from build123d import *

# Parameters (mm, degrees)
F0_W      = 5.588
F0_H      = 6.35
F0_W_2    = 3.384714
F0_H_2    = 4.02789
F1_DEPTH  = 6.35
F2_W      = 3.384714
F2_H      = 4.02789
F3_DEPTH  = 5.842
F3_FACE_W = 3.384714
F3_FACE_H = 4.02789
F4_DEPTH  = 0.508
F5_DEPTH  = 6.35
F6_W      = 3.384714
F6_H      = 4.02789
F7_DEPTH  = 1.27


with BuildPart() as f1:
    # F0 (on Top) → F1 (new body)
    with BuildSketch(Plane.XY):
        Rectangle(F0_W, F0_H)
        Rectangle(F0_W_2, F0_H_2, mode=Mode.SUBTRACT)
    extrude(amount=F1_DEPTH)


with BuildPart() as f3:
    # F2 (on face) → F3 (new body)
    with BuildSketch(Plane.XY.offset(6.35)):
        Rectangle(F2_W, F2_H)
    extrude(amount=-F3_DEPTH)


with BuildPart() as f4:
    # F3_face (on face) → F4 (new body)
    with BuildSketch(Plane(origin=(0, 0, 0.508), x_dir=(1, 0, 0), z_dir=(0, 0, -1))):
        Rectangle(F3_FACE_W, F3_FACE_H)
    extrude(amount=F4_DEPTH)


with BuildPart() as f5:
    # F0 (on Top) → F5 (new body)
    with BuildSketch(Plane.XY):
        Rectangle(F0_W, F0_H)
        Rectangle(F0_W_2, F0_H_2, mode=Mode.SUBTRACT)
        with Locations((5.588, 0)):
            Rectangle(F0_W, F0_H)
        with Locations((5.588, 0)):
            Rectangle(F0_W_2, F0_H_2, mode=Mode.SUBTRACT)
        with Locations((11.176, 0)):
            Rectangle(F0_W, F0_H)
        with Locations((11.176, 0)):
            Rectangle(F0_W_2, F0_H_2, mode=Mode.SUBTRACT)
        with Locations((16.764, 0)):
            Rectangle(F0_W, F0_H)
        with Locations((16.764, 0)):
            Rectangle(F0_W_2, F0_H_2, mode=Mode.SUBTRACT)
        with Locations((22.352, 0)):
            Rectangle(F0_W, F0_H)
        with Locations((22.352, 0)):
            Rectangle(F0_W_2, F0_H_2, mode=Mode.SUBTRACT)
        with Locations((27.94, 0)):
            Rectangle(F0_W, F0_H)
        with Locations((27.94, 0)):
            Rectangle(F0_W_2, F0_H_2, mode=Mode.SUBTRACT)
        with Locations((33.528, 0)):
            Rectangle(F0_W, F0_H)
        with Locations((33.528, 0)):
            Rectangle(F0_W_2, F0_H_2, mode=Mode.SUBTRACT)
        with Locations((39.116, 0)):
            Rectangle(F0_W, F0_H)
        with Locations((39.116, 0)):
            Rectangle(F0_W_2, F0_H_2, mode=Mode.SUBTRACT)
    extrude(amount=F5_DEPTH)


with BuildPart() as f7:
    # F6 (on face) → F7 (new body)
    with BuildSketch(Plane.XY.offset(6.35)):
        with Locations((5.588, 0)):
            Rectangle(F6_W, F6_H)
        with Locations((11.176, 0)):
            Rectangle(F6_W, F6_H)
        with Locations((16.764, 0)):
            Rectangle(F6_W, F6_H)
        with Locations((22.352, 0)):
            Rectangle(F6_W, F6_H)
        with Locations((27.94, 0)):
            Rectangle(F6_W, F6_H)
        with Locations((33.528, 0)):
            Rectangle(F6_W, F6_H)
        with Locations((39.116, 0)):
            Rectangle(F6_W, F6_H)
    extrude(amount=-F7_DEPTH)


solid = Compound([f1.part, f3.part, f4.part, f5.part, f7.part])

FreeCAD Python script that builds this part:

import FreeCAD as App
import Part
import Sketcher

V = App.Vector
Q = App.Units.Quantity

doc = App.newDocument("Part")
body = doc.addObject("PartDesign::Body", "Body")

# Sketch on XY plane
sketch1 = body.newObject("Sketcher::SketchObject", "Sketch")
sketch1.AttachmentSupport = (doc.getObject("XY_Plane"), [""])
sketch1.MapMode = "FlatFace"
sketch1.addGeometry([
    Part.LineSegment(V(-2.794, 3.175, 0), V(-2.794, -3.175, 0)),  # 0
    Part.LineSegment(V(-2.794, -3.175, 0), V(2.794, -3.175, 0)),  # 1
    Part.LineSegment(V(2.794, -3.175, 0), V(2.794, 3.175, 0)),  # 2
    Part.LineSegment(V(2.794, 3.175, 0), V(-2.794, 3.175, 0)),  # 3
    Part.LineSegment(V(1.692357, -2.013945, 0), V(-1.692357, -2.013945, 0)),  # 4
    Part.LineSegment(V(-1.692357, -2.013945, 0), V(-1.692357, 2.013945, 0)),  # 5
    Part.LineSegment(V(-1.692357, 2.013945, 0), V(1.692357, 2.013945, 0)),  # 6
    Part.LineSegment(V(1.692357, 2.013945, 0), V(1.692357, -2.013945, 0)),  # 7
], False)
sketch1.addConstraint([
    Sketcher.Constraint("Coincident", 0, 2, 1, 1),
    Sketcher.Constraint("Coincident", 1, 2, 2, 1),
    Sketcher.Constraint("Coincident", 2, 2, 3, 1),
    Sketcher.Constraint("Coincident", 3, 2, 0, 1),
    Sketcher.Constraint("Coincident", 4, 2, 5, 1),
    Sketcher.Constraint("Coincident", 5, 2, 6, 1),
    Sketcher.Constraint("Coincident", 6, 2, 7, 1),
    Sketcher.Constraint("Coincident", 7, 2, 4, 1),
    Sketcher.Constraint("Vertical", 0),
    Sketcher.Constraint("Horizontal", 1),
    Sketcher.Constraint("Vertical", 2),
    Sketcher.Constraint("Horizontal", 3),
    Sketcher.Constraint("Horizontal", 4),
    Sketcher.Constraint("Vertical", 5),
    Sketcher.Constraint("Horizontal", 6),
    Sketcher.Constraint("Vertical", 7),
    Sketcher.Constraint("Symmetric", 0, 2, 2, 2, -1, 1),
    Sketcher.Constraint("Symmetric", 4, 2, 6, 2, -1, 1),
    Sketcher.Constraint("DistanceX", 1, 1, 1, 2, Q("0.22 in")),
    Sketcher.Constraint("DistanceY", 0, 2, 0, 1, Q("0.25 in")),
    Sketcher.Constraint("DistanceY", 5, 1, 5, 2, 4.02789),
    Sketcher.Constraint("DistanceX", 4, 2, 4, 1, 3.384714),
])
pad1 = body.newObject("PartDesign::Pad", "Pad")
pad1.Profile = sketch1
pad1.Length = Q("0.25 in")
body2 = doc.addObject("PartDesign::Body", "Body001")

# Sketch on XY plane
sketch2 = body2.newObject("Sketcher::SketchObject", "Sketch001")
sketch2.AttachmentSupport = (doc.getObject("XY_Plane001"), [""])
sketch2.MapMode = "FlatFace"
sketch2.AttachmentOffset = App.Placement(V(0, 0, 0.25 * 25.4), App.Rotation())
sketch2.addGeometry([
    Part.LineSegment(V(-1.692357, 2.013945, 0), V(-1.692357, -2.013945, 0)),
    Part.LineSegment(V(-1.692357, -2.013945, 0), V(1.692357, -2.013945, 0)),
    Part.LineSegment(V(1.692357, -2.013945, 0), V(1.692357, 2.013945, 0)),
    Part.LineSegment(V(1.692357, 2.013945, 0), V(-1.692357, 2.013945, 0)),
], False)
sketch2.addConstraint([
    Sketcher.Constraint("Coincident", 0, 2, 1, 1),
    Sketcher.Constraint("Coincident", 1, 2, 2, 1),
    Sketcher.Constraint("Coincident", 2, 2, 3, 1),
    Sketcher.Constraint("Coincident", 3, 2, 0, 1),
    Sketcher.Constraint("Vertical", 0),
    Sketcher.Constraint("Horizontal", 1),
    Sketcher.Constraint("Vertical", 2),
    Sketcher.Constraint("Horizontal", 3),
    Sketcher.Constraint("Symmetric", 0, 2, 2, 2, -1, 1),
    Sketcher.Constraint("DistanceY", 0, 2, 0, 1, 4.02789),
    Sketcher.Constraint("DistanceX", 1, 1, 1, 2, 3.384714),
])
pad2 = body2.newObject("PartDesign::Pad", "Pad001")
pad2.Profile = sketch2
pad2.Length = Q("0.23 in")
pad2.Reversed = True
body3 = doc.addObject("PartDesign::Body", "Body002")

# Sketch on XY plane
sketch3 = body3.newObject("Sketcher::SketchObject", "Sketch002")
sketch3.AttachmentSupport = (doc.getObject("XY_Plane002"), [""])
sketch3.MapMode = "FlatFace"
sketch3.AttachmentOffset = App.Placement(V(0, 0, 0.02 * 25.4), App.Rotation())
sketch3.addGeometry([
    Part.LineSegment(V(-1.692357, -2.013945, 0), V(-1.692357, 2.013945, 0)),
    Part.LineSegment(V(-1.692357, 2.013945, 0), V(1.692357, 2.013945, 0)),
    Part.LineSegment(V(1.692357, 2.013945, 0), V(1.692357, -2.013945, 0)),
    Part.LineSegment(V(1.692357, -2.013945, 0), V(-1.692357, -2.013945, 0)),
], False)
sketch3.addConstraint([
    Sketcher.Constraint("Coincident", 0, 2, 1, 1),
    Sketcher.Constraint("Coincident", 1, 2, 2, 1),
    Sketcher.Constraint("Coincident", 2, 2, 3, 1),
    Sketcher.Constraint("Coincident", 3, 2, 0, 1),
    Sketcher.Constraint("Vertical", 0),
    Sketcher.Constraint("Horizontal", 1),
    Sketcher.Constraint("Vertical", 2),
    Sketcher.Constraint("Horizontal", 3),
    Sketcher.Constraint("Symmetric", 0, 2, 2, 2, -1, 1),
    Sketcher.Constraint("DistanceY", 0, 1, 0, 2, 4.02789),
    Sketcher.Constraint("DistanceX", 1, 1, 1, 2, 3.384714),
])
pad3 = body3.newObject("PartDesign::Pad", "Pad002")
pad3.Profile = sketch3
pad3.Length = Q("0.02 in")
pad3.Reversed = True
body4 = doc.addObject("PartDesign::Body", "Body003")

# Sketch on XY plane
sketch4 = body4.newObject("Sketcher::SketchObject", "Sketch003")
sketch4.AttachmentSupport = (doc.getObject("XY_Plane003"), [""])
sketch4.MapMode = "FlatFace"
sketch4.addGeometry([
    Part.LineSegment(V(-2.794, 3.175, 0), V(-2.794, -3.175, 0)),  # 0
    Part.LineSegment(V(-2.794, -3.175, 0), V(41.91, -3.175, 0)),  # 1
    Part.LineSegment(V(41.91, -3.175, 0), V(41.91, 3.175, 0)),  # 2
    Part.LineSegment(V(41.91, 3.175, 0), V(-2.794, 3.175, 0)),  # 3
    Part.LineSegment(V(1.692357, -2.013945, 0), V(-1.692357, -2.013945, 0)),  # 4
    Part.LineSegment(V(-1.692357, -2.013945, 0), V(-1.692357, 2.013945, 0)),  # 5
    Part.LineSegment(V(-1.692357, 2.013945, 0), V(1.692357, 2.013945, 0)),  # 6
    Part.LineSegment(V(1.692357, 2.013945, 0), V(1.692357, -2.013945, 0)),  # 7
    Part.LineSegment(V(7.280357, -2.013945, 0), V(3.895643, -2.013945, 0)),  # 8
    Part.LineSegment(V(3.895643, -2.013945, 0), V(3.895643, 2.013945, 0)),  # 9
    Part.LineSegment(V(3.895643, 2.013945, 0), V(7.280357, 2.013945, 0)),  # 10
    Part.LineSegment(V(7.280357, 2.013945, 0), V(7.280357, -2.013945, 0)),  # 11
    Part.LineSegment(V(12.868357, -2.013945, 0), V(9.483643, -2.013945, 0)),  # 12
    Part.LineSegment(V(9.483643, -2.013945, 0), V(9.483643, 2.013945, 0)),  # 13
    Part.LineSegment(V(9.483643, 2.013945, 0), V(12.868357, 2.013945, 0)),  # 14
    Part.LineSegment(V(12.868357, 2.013945, 0), V(12.868357, -2.013945, 0)),  # 15
    Part.LineSegment(V(18.456357, -2.013945, 0), V(15.071643, -2.013945, 0)),  # 16
    Part.LineSegment(V(15.071643, -2.013945, 0), V(15.071643, 2.013945, 0)),  # 17
    Part.LineSegment(V(15.071643, 2.013945, 0), V(18.456357, 2.013945, 0)),  # 18
    Part.LineSegment(V(18.456357, 2.013945, 0), V(18.456357, -2.013945, 0)),  # 19
    Part.LineSegment(V(24.044357, -2.013945, 0), V(20.659643, -2.013945, 0)),  # 20
    Part.LineSegment(V(20.659643, -2.013945, 0), V(20.659643, 2.013945, 0)),  # 21
    Part.LineSegment(V(20.659643, 2.013945, 0), V(24.044357, 2.013945, 0)),  # 22
    Part.LineSegment(V(24.044357, 2.013945, 0), V(24.044357, -2.013945, 0)),  # 23
    Part.LineSegment(V(29.632357, -2.013945, 0), V(26.247643, -2.013945, 0)),  # 24
    Part.LineSegment(V(26.247643, -2.013945, 0), V(26.247643, 2.013945, 0)),  # 25
    Part.LineSegment(V(26.247643, 2.013945, 0), V(29.632357, 2.013945, 0)),  # 26
    Part.LineSegment(V(29.632357, 2.013945, 0), V(29.632357, -2.013945, 0)),  # 27
    Part.LineSegment(V(35.220357, -2.013945, 0), V(31.835643, -2.013945, 0)),  # 28
    Part.LineSegment(V(31.835643, -2.013945, 0), V(31.835643, 2.013945, 0)),  # 29
    Part.LineSegment(V(31.835643, 2.013945, 0), V(35.220357, 2.013945, 0)),  # 30
    Part.LineSegment(V(35.220357, 2.013945, 0), V(35.220357, -2.013945, 0)),  # 31
    Part.LineSegment(V(40.808357, -2.013945, 0), V(37.423643, -2.013945, 0)),  # 32
    Part.LineSegment(V(37.423643, -2.013945, 0), V(37.423643, 2.013945, 0)),  # 33
    Part.LineSegment(V(37.423643, 2.013945, 0), V(40.808357, 2.013945, 0)),  # 34
    Part.LineSegment(V(40.808357, 2.013945, 0), V(40.808357, -2.013945, 0)),  # 35
], False)
sketch4.addConstraint([
    Sketcher.Constraint("Coincident", 0, 2, 1, 1),
    Sketcher.Constraint("Coincident", 1, 2, 2, 1),
    Sketcher.Constraint("Coincident", 2, 2, 3, 1),
    Sketcher.Constraint("Coincident", 3, 2, 0, 1),
    Sketcher.Constraint("Coincident", 4, 2, 5, 1),
    Sketcher.Constraint("Coincident", 5, 2, 6, 1),
    Sketcher.Constraint("Coincident", 6, 2, 7, 1),
    Sketcher.Constraint("Coincident", 7, 2, 4, 1),
    Sketcher.Constraint("Coincident", 8, 2, 9, 1),
    Sketcher.Constraint("Coincident", 9, 2, 10, 1),
    Sketcher.Constraint("Coincident", 10, 2, 11, 1),
    Sketcher.Constraint("Coincident", 11, 2, 8, 1),
    Sketcher.Constraint("Coincident", 12, 2, 13, 1),
    Sketcher.Constraint("Coincident", 13, 2, 14, 1),
    Sketcher.Constraint("Coincident", 14, 2, 15, 1),
    Sketcher.Constraint("Coincident", 15, 2, 12, 1),
    Sketcher.Constraint("Coincident", 16, 2, 17, 1),
    Sketcher.Constraint("Coincident", 17, 2, 18, 1),
    Sketcher.Constraint("Coincident", 18, 2, 19, 1),
    Sketcher.Constraint("Coincident", 19, 2, 16, 1),
    Sketcher.Constraint("Coincident", 20, 2, 21, 1),
    Sketcher.Constraint("Coincident", 21, 2, 22, 1),
    Sketcher.Constraint("Coincident", 22, 2, 23, 1),
    Sketcher.Constraint("Coincident", 23, 2, 20, 1),
    Sketcher.Constraint("Coincident", 24, 2, 25, 1),
    Sketcher.Constraint("Coincident", 25, 2, 26, 1),
    Sketcher.Constraint("Coincident", 26, 2, 27, 1),
    Sketcher.Constraint("Coincident", 27, 2, 24, 1),
    Sketcher.Constraint("Coincident", 28, 2, 29, 1),
    Sketcher.Constraint("Coincident", 29, 2, 30, 1),
    Sketcher.Constraint("Coincident", 30, 2, 31, 1),
    Sketcher.Constraint("Coincident", 31, 2, 28, 1),
    Sketcher.Constraint("Coincident", 32, 2, 33, 1),
    Sketcher.Constraint("Coincident", 33, 2, 34, 1),
    Sketcher.Constraint("Coincident", 34, 2, 35, 1),
    Sketcher.Constraint("Coincident", 35, 2, 32, 1),
    Sketcher.Constraint("Vertical", 0),
    Sketcher.Constraint("Horizontal", 1),
    Sketcher.Constraint("Vertical", 2),
    Sketcher.Constraint("Horizontal", 3),
    Sketcher.Constraint("Horizontal", 4),
    Sketcher.Constraint("Vertical", 5),
    Sketcher.Constraint("Horizontal", 6),
    Sketcher.Constraint("Vertical", 7),
    Sketcher.Constraint("Horizontal", 8),
    Sketcher.Constraint("Vertical", 9),
    Sketcher.Constraint("Horizontal", 10),
    Sketcher.Constraint("Vertical", 11),
    Sketcher.Constraint("Horizontal", 12),
    Sketcher.Constraint("Vertical", 13),
    Sketcher.Constraint("Horizontal", 14),
    Sketcher.Constraint("Vertical", 15),
    Sketcher.Constraint("Horizontal", 16),
    Sketcher.Constraint("Vertical", 17),
    Sketcher.Constraint("Horizontal", 18),
    Sketcher.Constraint("Vertical", 19),
    Sketcher.Constraint("Horizontal", 20),
    Sketcher.Constraint("Vertical", 21),
    Sketcher.Constraint("Horizontal", 22),
    Sketcher.Constraint("Vertical", 23),
    Sketcher.Constraint("Horizontal", 24),
    Sketcher.Constraint("Vertical", 25),
    Sketcher.Constraint("Horizontal", 26),
    Sketcher.Constraint("Vertical", 27),
    Sketcher.Constraint("Horizontal", 28),
    Sketcher.Constraint("Vertical", 29),
    Sketcher.Constraint("Horizontal", 30),
    Sketcher.Constraint("Vertical", 31),
    Sketcher.Constraint("Horizontal", 32),
    Sketcher.Constraint("Vertical", 33),
    Sketcher.Constraint("Horizontal", 34),
    Sketcher.Constraint("Vertical", 35),
    Sketcher.Constraint("Symmetric", 4, 2, 6, 2, -1, 1),
    Sketcher.Constraint("Horizontal", 7, 2, 8, 2),
    Sketcher.Constraint("Horizontal", 6, 2, 9, 2),
    Sketcher.Constraint("Horizontal", 11, 2, 12, 2),
    Sketcher.Constraint("Horizontal", 10, 2, 13, 2),
    Sketcher.Constraint("Horizontal", 15, 2, 16, 2),
    Sketcher.Constraint("Horizontal", 14, 2, 17, 2),
    Sketcher.Constraint("Horizontal", 19, 2, 20, 2),
    Sketcher.Constraint("Horizontal", 18, 2, 21, 2),
    Sketcher.Constraint("Horizontal", 23, 2, 24, 2),
    Sketcher.Constraint("Horizontal", 22, 2, 25, 2),
    Sketcher.Constraint("Horizontal", 27, 2, 28, 2),
    Sketcher.Constraint("Horizontal", 26, 2, 29, 2),
    Sketcher.Constraint("Horizontal", 31, 2, 32, 2),
    Sketcher.Constraint("Horizontal", 30, 2, 33, 2),
    Sketcher.Constraint("Equal", 6, 8),
    Sketcher.Constraint("Equal", 10, 12),
    Sketcher.Constraint("Equal", 14, 16),
    Sketcher.Constraint("Equal", 18, 20),
    Sketcher.Constraint("Equal", 22, 24),
    Sketcher.Constraint("Equal", 26, 28),
    Sketcher.Constraint("Equal", 30, 32),
    Sketcher.Constraint("DistanceX", 1, 1, 1, 2, Q("1.76 in")),
    Sketcher.Constraint("DistanceY", 0, 2, 0, 1, Q("0.25 in")),
    Sketcher.Constraint("DistanceX", 0, 2, -1, 1, Q("0.11 in")),
    Sketcher.Constraint("DistanceX", 4, 2, 8, 2, Q("0.22 in")),
    Sketcher.Constraint("DistanceX", 8, 2, 12, 2, Q("0.22 in")),
    Sketcher.Constraint("DistanceX", 12, 2, 16, 2, Q("0.22 in")),
    Sketcher.Constraint("DistanceX", 16, 2, 20, 2, Q("0.22 in")),
    Sketcher.Constraint("DistanceX", 20, 2, 24, 2, Q("0.22 in")),
    Sketcher.Constraint("DistanceX", 24, 2, 28, 2, Q("0.22 in")),
    Sketcher.Constraint("DistanceX", 28, 2, 32, 2, Q("0.22 in")),
    Sketcher.Constraint("DistanceY", 0, 2, -1, 1, Q("0.125 in")),
    Sketcher.Constraint("DistanceY", 5, 1, 5, 2, 4.02789),
    Sketcher.Constraint("DistanceX", 4, 2, 4, 1, 3.384714),
])
pad4 = body4.newObject("PartDesign::Pad", "Pad003")
pad4.Profile = sketch4
pad4.Length = Q("0.25 in")
body5 = doc.addObject("PartDesign::Body", "Body004")
body5.AllowCompound = True

# Sketch on XY plane
sketch5 = body5.newObject("Sketcher::SketchObject", "Sketch004")
sketch5.AttachmentSupport = (doc.getObject("XY_Plane004"), [""])
sketch5.MapMode = "FlatFace"
sketch5.AttachmentOffset = App.Placement(V(0, 0, 0.25 * 25.4), App.Rotation())
sketch5.addGeometry([
    Part.LineSegment(V(3.895643, 2.013945, 0), V(3.895643, -2.013945, 0)),  # 0
    Part.LineSegment(V(3.895643, -2.013945, 0), V(7.280357, -2.013945, 0)),  # 1
    Part.LineSegment(V(7.280357, -2.013945, 0), V(7.280357, 2.013945, 0)),  # 2
    Part.LineSegment(V(7.280357, 2.013945, 0), V(3.895643, 2.013945, 0)),  # 3
    Part.LineSegment(V(9.483643, 2.013945, 0), V(9.483643, -2.013945, 0)),  # 4
    Part.LineSegment(V(9.483643, -2.013945, 0), V(12.868357, -2.013945, 0)),  # 5
    Part.LineSegment(V(12.868357, -2.013945, 0), V(12.868357, 2.013945, 0)),  # 6
    Part.LineSegment(V(12.868357, 2.013945, 0), V(9.483643, 2.013945, 0)),  # 7
    Part.LineSegment(V(15.071643, 2.013945, 0), V(15.071643, -2.013945, 0)),  # 8
    Part.LineSegment(V(15.071643, -2.013945, 0), V(18.456357, -2.013945, 0)),  # 9
    Part.LineSegment(V(18.456357, -2.013945, 0), V(18.456357, 2.013945, 0)),  # 10
    Part.LineSegment(V(18.456357, 2.013945, 0), V(15.071643, 2.013945, 0)),  # 11
    Part.LineSegment(V(20.659643, 2.013945, 0), V(20.659643, -2.013945, 0)),  # 12
    Part.LineSegment(V(20.659643, -2.013945, 0), V(24.044357, -2.013945, 0)),  # 13
    Part.LineSegment(V(24.044357, -2.013945, 0), V(24.044357, 2.013945, 0)),  # 14
    Part.LineSegment(V(24.044357, 2.013945, 0), V(20.659643, 2.013945, 0)),  # 15
    Part.LineSegment(V(26.247643, 2.013945, 0), V(26.247643, -2.013945, 0)),  # 16
    Part.LineSegment(V(26.247643, -2.013945, 0), V(29.632357, -2.013945, 0)),  # 17
    Part.LineSegment(V(29.632357, -2.013945, 0), V(29.632357, 2.013945, 0)),  # 18
    Part.LineSegment(V(29.632357, 2.013945, 0), V(26.247643, 2.013945, 0)),  # 19
    Part.LineSegment(V(31.835643, 2.013945, 0), V(31.835643, -2.013945, 0)),  # 20
    Part.LineSegment(V(31.835643, -2.013945, 0), V(35.220357, -2.013945, 0)),  # 21
    Part.LineSegment(V(35.220357, -2.013945, 0), V(35.220357, 2.013945, 0)),  # 22
    Part.LineSegment(V(35.220357, 2.013945, 0), V(31.835643, 2.013945, 0)),  # 23
    Part.LineSegment(V(37.423643, 2.013945, 0), V(37.423643, -2.013945, 0)),  # 24
    Part.LineSegment(V(37.423643, -2.013945, 0), V(40.808357, -2.013945, 0)),  # 25
    Part.LineSegment(V(40.808357, -2.013945, 0), V(40.808357, 2.013945, 0)),  # 26
    Part.LineSegment(V(40.808357, 2.013945, 0), V(37.423643, 2.013945, 0)),  # 27
], False)
sketch5.addConstraint([
    Sketcher.Constraint("Coincident", 0, 2, 1, 1),
    Sketcher.Constraint("Coincident", 1, 2, 2, 1),
    Sketcher.Constraint("Coincident", 2, 2, 3, 1),
    Sketcher.Constraint("Coincident", 3, 2, 0, 1),
    Sketcher.Constraint("Coincident", 4, 2, 5, 1),
    Sketcher.Constraint("Coincident", 5, 2, 6, 1),
    Sketcher.Constraint("Coincident", 6, 2, 7, 1),
    Sketcher.Constraint("Coincident", 7, 2, 4, 1),
    Sketcher.Constraint("Coincident", 8, 2, 9, 1),
    Sketcher.Constraint("Coincident", 9, 2, 10, 1),
    Sketcher.Constraint("Coincident", 10, 2, 11, 1),
    Sketcher.Constraint("Coincident", 11, 2, 8, 1),
    Sketcher.Constraint("Coincident", 12, 2, 13, 1),
    Sketcher.Constraint("Coincident", 13, 2, 14, 1),
    Sketcher.Constraint("Coincident", 14, 2, 15, 1),
    Sketcher.Constraint("Coincident", 15, 2, 12, 1),
    Sketcher.Constraint("Coincident", 16, 2, 17, 1),
    Sketcher.Constraint("Coincident", 17, 2, 18, 1),
    Sketcher.Constraint("Coincident", 18, 2, 19, 1),
    Sketcher.Constraint("Coincident", 19, 2, 16, 1),
    Sketcher.Constraint("Coincident", 20, 2, 21, 1),
    Sketcher.Constraint("Coincident", 21, 2, 22, 1),
    Sketcher.Constraint("Coincident", 22, 2, 23, 1),
    Sketcher.Constraint("Coincident", 23, 2, 20, 1),
    Sketcher.Constraint("Coincident", 24, 2, 25, 1),
    Sketcher.Constraint("Coincident", 25, 2, 26, 1),
    Sketcher.Constraint("Coincident", 26, 2, 27, 1),
    Sketcher.Constraint("Coincident", 27, 2, 24, 1),
    Sketcher.Constraint("Vertical", 0),
    Sketcher.Constraint("Horizontal", 1),
    Sketcher.Constraint("Vertical", 2),
    Sketcher.Constraint("Horizontal", 3),
    Sketcher.Constraint("Vertical", 4),
    Sketcher.Constraint("Horizontal", 5),
    Sketcher.Constraint("Vertical", 6),
    Sketcher.Constraint("Horizontal", 7),
    Sketcher.Constraint("Vertical", 8),
    Sketcher.Constraint("Horizontal", 9),
    Sketcher.Constraint("Vertical", 10),
    Sketcher.Constraint("Horizontal", 11),
    Sketcher.Constraint("Vertical", 12),
    Sketcher.Constraint("Horizontal", 13),
    Sketcher.Constraint("Vertical", 14),
    Sketcher.Constraint("Horizontal", 15),
    Sketcher.Constraint("Vertical", 16),
    Sketcher.Constraint("Horizontal", 17),
    Sketcher.Constraint("Vertical", 18),
    Sketcher.Constraint("Horizontal", 19),
    Sketcher.Constraint("Vertical", 20),
    Sketcher.Constraint("Horizontal", 21),
    Sketcher.Constraint("Vertical", 22),
    Sketcher.Constraint("Horizontal", 23),
    Sketcher.Constraint("Vertical", 24),
    Sketcher.Constraint("Horizontal", 25),
    Sketcher.Constraint("Vertical", 26),
    Sketcher.Constraint("Horizontal", 27),
    Sketcher.Constraint("Horizontal", 1, 2, 4, 2),
    Sketcher.Constraint("Horizontal", 3, 2, 6, 2),
    Sketcher.Constraint("Horizontal", 5, 2, 8, 2),
    Sketcher.Constraint("Horizontal", 7, 2, 10, 2),
    Sketcher.Constraint("Horizontal", 9, 2, 12, 2),
    Sketcher.Constraint("Horizontal", 11, 2, 14, 2),
    Sketcher.Constraint("Horizontal", 13, 2, 16, 2),
    Sketcher.Constraint("Horizontal", 15, 2, 18, 2),
    Sketcher.Constraint("Horizontal", 17, 2, 20, 2),
    Sketcher.Constraint("Horizontal", 19, 2, 22, 2),
    Sketcher.Constraint("Horizontal", 21, 2, 24, 2),
    Sketcher.Constraint("Horizontal", 23, 2, 26, 2),
    Sketcher.Constraint("Equal", 3, 5),
    Sketcher.Constraint("Equal", 7, 9),
    Sketcher.Constraint("Equal", 11, 13),
    Sketcher.Constraint("Equal", 15, 17),
    Sketcher.Constraint("Equal", 19, 21),
    Sketcher.Constraint("Equal", 23, 25),
    Sketcher.Constraint("DistanceX", 0, 2, 4, 2, Q("0.22 in")),
    Sketcher.Constraint("DistanceX", 4, 2, 8, 2, Q("0.22 in")),
    Sketcher.Constraint("DistanceX", 8, 2, 12, 2, Q("0.22 in")),
    Sketcher.Constraint("DistanceX", 12, 2, 16, 2, Q("0.22 in")),
    Sketcher.Constraint("DistanceX", 16, 2, 20, 2, Q("0.22 in")),
    Sketcher.Constraint("DistanceX", 20, 2, 24, 2, Q("0.22 in")),
    Sketcher.Constraint("DistanceY", 0, 2, 0, 1, 4.02789),
    Sketcher.Constraint("DistanceX", 1, 1, 1, 2, 3.384714),
    Sketcher.Constraint("DistanceX", -1, 1, 0, 2, 3.895643),
    Sketcher.Constraint("DistanceY", 0, 2, -1, 1, 2.013945),
])
pad5 = body5.newObject("PartDesign::Pad", "Pad004")
pad5.Profile = sketch5
pad5.Length = Q("0.05 in")
pad5.Reversed = True

doc.recompute()
